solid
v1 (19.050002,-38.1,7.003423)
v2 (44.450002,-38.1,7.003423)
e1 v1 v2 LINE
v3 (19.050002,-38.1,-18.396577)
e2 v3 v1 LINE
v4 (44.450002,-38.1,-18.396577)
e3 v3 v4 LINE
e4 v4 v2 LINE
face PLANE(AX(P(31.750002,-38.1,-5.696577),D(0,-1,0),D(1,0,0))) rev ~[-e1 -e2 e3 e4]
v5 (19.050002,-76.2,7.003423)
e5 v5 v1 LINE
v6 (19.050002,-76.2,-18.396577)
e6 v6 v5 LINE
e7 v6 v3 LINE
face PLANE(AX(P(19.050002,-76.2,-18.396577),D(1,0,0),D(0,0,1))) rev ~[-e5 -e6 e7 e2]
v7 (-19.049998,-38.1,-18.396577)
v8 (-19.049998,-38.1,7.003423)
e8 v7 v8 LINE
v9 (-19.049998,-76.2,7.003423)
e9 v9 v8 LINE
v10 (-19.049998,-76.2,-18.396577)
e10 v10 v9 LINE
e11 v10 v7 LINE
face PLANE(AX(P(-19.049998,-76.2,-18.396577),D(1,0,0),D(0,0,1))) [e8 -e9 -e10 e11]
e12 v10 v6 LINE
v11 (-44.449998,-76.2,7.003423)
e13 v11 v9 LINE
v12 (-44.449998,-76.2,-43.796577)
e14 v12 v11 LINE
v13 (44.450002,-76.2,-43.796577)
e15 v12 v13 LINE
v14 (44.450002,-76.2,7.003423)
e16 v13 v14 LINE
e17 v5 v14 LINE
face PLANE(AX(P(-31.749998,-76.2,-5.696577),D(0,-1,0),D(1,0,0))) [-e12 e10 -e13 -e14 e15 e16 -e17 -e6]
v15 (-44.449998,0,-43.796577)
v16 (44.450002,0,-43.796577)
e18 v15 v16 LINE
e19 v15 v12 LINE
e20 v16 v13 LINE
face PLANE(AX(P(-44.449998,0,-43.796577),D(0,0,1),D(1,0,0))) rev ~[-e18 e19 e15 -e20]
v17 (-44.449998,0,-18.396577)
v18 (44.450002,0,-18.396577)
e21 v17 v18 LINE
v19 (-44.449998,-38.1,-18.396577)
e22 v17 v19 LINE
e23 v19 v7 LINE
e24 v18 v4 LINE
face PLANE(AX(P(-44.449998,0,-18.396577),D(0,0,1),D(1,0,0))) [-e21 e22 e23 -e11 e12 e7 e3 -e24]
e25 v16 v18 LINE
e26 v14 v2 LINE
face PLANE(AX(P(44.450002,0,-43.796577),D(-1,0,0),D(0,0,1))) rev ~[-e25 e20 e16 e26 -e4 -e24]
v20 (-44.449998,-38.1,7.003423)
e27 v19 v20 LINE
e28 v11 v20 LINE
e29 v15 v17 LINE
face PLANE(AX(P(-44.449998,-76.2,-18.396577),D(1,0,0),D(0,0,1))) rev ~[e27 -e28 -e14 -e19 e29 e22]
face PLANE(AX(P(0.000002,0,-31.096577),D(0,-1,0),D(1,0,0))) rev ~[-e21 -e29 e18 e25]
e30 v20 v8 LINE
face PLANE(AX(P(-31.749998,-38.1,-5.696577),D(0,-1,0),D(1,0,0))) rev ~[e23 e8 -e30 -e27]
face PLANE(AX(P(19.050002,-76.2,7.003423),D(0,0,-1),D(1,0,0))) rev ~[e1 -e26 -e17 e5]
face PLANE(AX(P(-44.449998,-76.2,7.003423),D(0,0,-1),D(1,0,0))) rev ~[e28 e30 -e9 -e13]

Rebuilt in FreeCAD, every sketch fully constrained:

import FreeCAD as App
import Part
import Sketcher
Q = App.Units.Quantity


def add_polygon(sketch, points):
    """Adds a closed chain of lines whose ends are joined by coincident constraints."""
    first, n = sketch.GeometryCount, len(points)
    for a, b in zip(points, points[1:] + points[:1]):
        sketch.addGeometry(Part.LineSegment(App.Vector(*a, 0), App.Vector(*b, 0)), False)
    for i in range(n):
        sketch.addConstraint(Sketcher.Constraint("Coincident", first + i, 2, first + (i + 1) % n, 1))

doc = App.newDocument("Part")
body = doc.addObject("PartDesign::Body", "Body")

sketch1 = body.newObject("Sketcher::SketchObject", "Sketch")
sketch1.AttachmentSupport = (doc.getObject("XZ_Plane"), [""])
sketch1.MapMode = "FlatFace"
add_polygon(sketch1, [(-44.449998, -18.396577), (-44.449998, -43.796577), (44.450002, -43.796577), (44.450002, -18.396577)])
sketch1.addConstraint([
    Sketcher.Constraint("Vertical", 0),
    Sketcher.Constraint("Horizontal", 1),
    Sketcher.Constraint("Vertical", 2),
    Sketcher.Constraint("Horizontal", 3),
    Sketcher.Constraint("DistanceY", 0, 2, 0, 1, Q("1 in")),
    Sketcher.Constraint("DistanceX", 1, 1, 1, 2, Q("3.5 in")),
    Sketcher.Constraint("DistanceX", 0, 2, -1, 1, Q("1.7499999 in")),
    Sketcher.Constraint("DistanceY", 0, 2, -1, 1, Q("43.796577 mm")),
])
pad1 = body.newObject("PartDesign::Pad", "Pad")
pad1.Profile = sketch1
pad1.Length = Q("3 in")

sketch2 = body.newObject("Sketcher::SketchObject", "Sketch001")
sketch2.AttachmentSupport = (doc.getObject("XZ_Plane"), [""])
sketch2.MapMode = "FlatFace"
sketch2.AttachmentOffset = App.Placement(App.Vector(0, 0, 3 * 25.4), App.Rotation())
add_polygon(sketch2, [(-44.449998, 7.003423), (-44.449998, -18.396577), (-19.049998, -18.396577), (-19.049998, 7.003423)])
add_polygon(sketch2, [(19.050002, 7.003423), (19.050002, -18.396577), (44.450002, -18.396577), (44.450002, 7.003423)])
sketch2.addConstraint([
    Sketcher.Constraint("Vertical", 0),
    Sketcher.Constraint("Horizontal", 1),
    Sketcher.Constraint("Vertical", 2),
    Sketcher.Constraint("Horizontal", 3),
    Sketcher.Constraint("Vertical", 4),
    Sketcher.Constraint("Horizontal", 5),
    Sketcher.Constraint("Vertical", 6),
    Sketcher.Constraint("Horizontal", 7),
    Sketcher.Constraint("Symmetric", 1, 2, 4, 2, -2),
    Sketcher.Constraint("Symmetric", 3, 2, 6, 2, -2),
    Sketcher.Constraint("Equal", 7, 0),
    Sketcher.Constraint("DistanceX", 1, 1, 1, 2, Q("1 in")),
    Sketcher.Constraint("DistanceX", 1, 2, 4, 2, Q("1.5 in")),
    Sketcher.Constraint("DistanceY", 0, 2, -1, 1, Q("18.396577 mm")),
])
pad2 = body.newObject("PartDesign::Pad", "Pad001")
pad2.Profile = sketch2
pad2.Length = Q("1.5 in")
pad2.Reversed = True

doc.recompute()
